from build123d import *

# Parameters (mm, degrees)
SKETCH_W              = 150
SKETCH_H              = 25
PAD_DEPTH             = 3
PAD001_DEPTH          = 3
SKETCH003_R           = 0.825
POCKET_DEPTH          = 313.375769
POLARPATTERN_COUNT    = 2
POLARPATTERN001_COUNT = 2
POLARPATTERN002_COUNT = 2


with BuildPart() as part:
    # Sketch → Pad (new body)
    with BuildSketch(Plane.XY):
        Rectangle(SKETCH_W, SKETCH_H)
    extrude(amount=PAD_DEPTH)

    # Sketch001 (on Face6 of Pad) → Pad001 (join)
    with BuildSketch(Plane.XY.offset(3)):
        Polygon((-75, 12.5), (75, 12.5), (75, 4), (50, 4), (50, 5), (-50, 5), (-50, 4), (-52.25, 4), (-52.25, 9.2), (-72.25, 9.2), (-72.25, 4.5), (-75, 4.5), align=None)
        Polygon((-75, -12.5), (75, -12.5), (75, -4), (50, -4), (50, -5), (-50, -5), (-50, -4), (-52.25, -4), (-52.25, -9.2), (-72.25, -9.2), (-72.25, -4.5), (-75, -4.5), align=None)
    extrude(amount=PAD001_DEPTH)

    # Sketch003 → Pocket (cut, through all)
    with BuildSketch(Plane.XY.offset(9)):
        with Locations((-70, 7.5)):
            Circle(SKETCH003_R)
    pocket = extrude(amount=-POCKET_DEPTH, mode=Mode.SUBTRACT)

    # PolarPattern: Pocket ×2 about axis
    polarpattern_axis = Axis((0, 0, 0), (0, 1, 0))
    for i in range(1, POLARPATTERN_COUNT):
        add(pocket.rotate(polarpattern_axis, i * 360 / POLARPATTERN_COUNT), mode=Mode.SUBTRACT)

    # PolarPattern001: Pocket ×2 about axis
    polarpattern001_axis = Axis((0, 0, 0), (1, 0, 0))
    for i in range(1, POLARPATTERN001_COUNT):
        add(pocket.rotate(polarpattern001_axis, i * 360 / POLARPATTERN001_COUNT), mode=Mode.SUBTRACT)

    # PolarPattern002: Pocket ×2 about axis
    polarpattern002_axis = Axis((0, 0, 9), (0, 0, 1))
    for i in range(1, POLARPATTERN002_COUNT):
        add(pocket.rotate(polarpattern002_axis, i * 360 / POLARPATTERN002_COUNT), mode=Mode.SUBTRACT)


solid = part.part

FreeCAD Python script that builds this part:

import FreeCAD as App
import Part
import Sketcher

V = App.Vector
Q = App.Units.Quantity


def add_polygon(sketch, points):
    """Adds a closed chain of lines whose ends are joined by coincident constraints."""
    first, n = sketch.GeometryCount, len(points)
    for a, b in zip(points, points[1:] + points[:1]):
        sketch.addGeometry(Part.LineSegment(App.Vector(*a, 0), App.Vector(*b, 0)), False)
    for i in range(n):
        sketch.addConstraint(Sketcher.Constraint("Coincident", first + i, 2, first + (i + 1) % n, 1))

doc = App.newDocument("Part")
params = doc.addObject("Spreadsheet::Sheet", "Params")
for row, (alias, value) in enumerate([
    ("sketch1_width", "150 mm"),
    ("sketch1_height", "25 mm"),
    ("pad1_length", "3 mm"),
    ("sketch2_width", "150 mm"),
    ("sketch2_width2", "20 mm"),
    ("sketch2_width3", "100 mm"),
    ("sketch2_height", "8 mm"),
    ("sketch2_height2", "1 mm"),
    ("pad2_length", "3 mm"),
    ("sketch3_diameter", "1.65 mm"),
], start=1):
    params.set(f"A{row}", alias)
    params.set(f"B{row}", "=" + value)
    params.setAlias(f"B{row}", alias)

body = doc.addObject("PartDesign::Body", "Body")

# Sketch on XY plane
sketch1 = doc.addObject("Sketcher::SketchObject", "Sketch")
body.addObject(sketch1)
sketch1.AttachmentSupport = (doc.XY_Plane, [""])
sketch1.MapMode = "FlatFace"
add_polygon(sketch1, [(-75, 12), (-75, -12), (75, -12), (75, 12)])  # lines 0-3
sketch1.addConstraint(Sketcher.Constraint("Vertical", 0))
sketch1.addConstraint(Sketcher.Constraint("Horizontal", 1))
sketch1.addConstraint(Sketcher.Constraint("Vertical", 2))
sketch1.addConstraint(Sketcher.Constraint("Horizontal", 3))
sketch1.addConstraint(Sketcher.Constraint("Symmetric", 0, 2, 2, 2, -1, 1))
sketch1.addConstraint(Sketcher.Constraint("DistanceX", 1, 1, 1, 2, Q("150 mm")))
sketch1.addConstraint(Sketcher.Constraint("DistanceY", 0, 2, 0, 1, Q("25 mm")))
sketch1.setExpression("Constraints[9]", "Params.sketch1_width")
sketch1.setExpression("Constraints[10]", "Params.sketch1_height")
pad1 = doc.addObject("PartDesign::Pad", "Pad")
body.addObject(pad1)
pad1.Profile = sketch1
pad1.setExpression("Length", "Params.pad1_length")

# Sketch on XY plane
sketch2 = doc.addObject("Sketcher::SketchObject", "Sketch001")
body.addObject(sketch2)
sketch2.AttachmentSupport = (doc.XY_Plane, [""])
sketch2.MapMode = "FlatFace"
sketch2.AttachmentOffset = App.Placement(V(0, 0, 3), App.Rotation())
add_polygon(sketch2, [(75, 12.5), (-75, 12.5), (-75, 4.5), (-72.2, 4.5), (-72.2, 9.2), (-52.2, 9.2), (-52.2, 4), (-50, 4), (-50, 5), (50, 5), (50, 4), (75, 4)])  # lines 0-11
add_polygon(sketch2, [(-75, -12.5), (75, -12.5), (75, -4), (50, -4), (50, -5), (-50, -5), (-50, -4), (-52.2, -4), (-52.2, -9.2), (-72.2, -9.2), (-72.2, -4.5), (-75, -4.5)])  # lines 12-23
sketch2.addConstraint(Sketcher.Constraint("Horizontal", 0))
sketch2.addConstraint(Sketcher.Constraint("Vertical", 1))
sketch2.addConstraint(Sketcher.Constraint("Horizontal", 2))
sketch2.addConstraint(Sketcher.Constraint("Vertical", 3))
sketch2.addConstraint(Sketcher.Constraint("Horizontal", 4))
sketch2.addConstraint(Sketcher.Constraint("Vertical", 5))
sketch2.addConstraint(Sketcher.Constraint("Horizontal", 6))
sketch2.addConstraint(Sketcher.Constraint("Vertical", 7))
sketch2.addConstraint(Sketcher.Constraint("Horizontal", 8))
sketch2.addConstraint(Sketcher.Constraint("Vertical", 9))
sketch2.addConstraint(Sketcher.Constraint("Horizontal", 10))
sketch2.addConstraint(Sketcher.Constraint("Vertical", 11))
sketch2.addConstraint(Sketcher.Constraint("Horizontal", 12))
sketch2.addConstraint(Sketcher.Constraint("Vertical", 13))
sketch2.addConstraint(Sketcher.Constraint("Horizontal", 14))
sketch2.addConstraint(Sketcher.Constraint("Vertical", 15))
sketch2.addConstraint(Sketcher.Constraint("Horizontal", 16))
sketch2.addConstraint(Sketcher.Constraint("Vertical", 17))
sketch2.addConstraint(Sketcher.Constraint("Horizontal", 18))
sketch2.addConstraint(Sketcher.Constraint("Vertical", 19))
sketch2.addConstraint(Sketcher.Constraint("Horizontal", 20))
sketch2.addConstraint(Sketcher.Constraint("Vertical", 21))
sketch2.addConstraint(Sketcher.Constraint("Horizontal", 22))
sketch2.addConstraint(Sketcher.Constraint("Vertical", 23))
sketch2.addConstraint(Sketcher.Constraint("Symmetric", 0, 2, 12, 2, -1, 1))
sketch2.addConstraint(Sketcher.Constraint("Symmetric", 6, 2, 14, 2, -1, 1))
sketch2.addConstraint(Sketcher.Constraint("Symmetric", 8, 2, 16, 2, -1, 1))
sketch2.addConstraint(Sketcher.Constraint("Symmetric", 6, 2, 9, 2, -2))
sketch2.addConstraint(Sketcher.Constraint("Symmetric", 5, 2, 18, 2, -1))
sketch2.addConstraint(Sketcher.Constraint("Symmetric", 3, 2, 20, 2, -1))
sketch2.addConstraint(Sketcher.Constraint("Symmetric", 1, 2, 22, 2, -1))
sketch2.addConstraint(Sketcher.Constraint("Vertical", 11, 2, 12, 2))
sketch2.addConstraint(Sketcher.Constraint("DistanceX", 0, 2, 0, 1, Q("150 mm")))
sketch2.addConstraint(Sketcher.Constraint("DistanceX", 4, 1, 4, 2, Q("20 mm")))
sketch2.addConstraint(Sketcher.Constraint("DistanceX", 8, 1, 8, 2, Q("100 mm")))
sketch2.addConstraint(Sketcher.Constraint("DistanceY", 1, 2, 1, 1, Q("8 mm")))
sketch2.addConstraint(Sketcher.Constraint("DistanceY", 7, 1, 7, 2, Q("1 mm")))
sketch2.addConstraint(Sketcher.Constraint("DistanceY", 3, 1, 3, 2, Q("4.7 mm")))
sketch2.addConstraint(Sketcher.Constraint("DistanceY", 5, 2, 5, 1, Q("5.2 mm")))
sketch2.addConstraint(Sketcher.Constraint("DistanceY", -1, 1, 5, 2, Q("4 mm")))
sketch2.addConstraint(Sketcher.Constraint("DistanceX", 2, 1, 2, 2, Q("2.75 mm")))
sketch2.setExpression("Constraints[56]", "Params.sketch2_width")
sketch2.setExpression("Constraints[57]", "Params.sketch2_width2")
sketch2.setExpression("Constraints[58]", "Params.sketch2_width3")
sketch2.setExpression("Constraints[59]", "Params.sketch2_height")
sketch2.setExpression("Constraints[60]", "Params.sketch2_height2")
pad2 = doc.addObject("PartDesign::Pad", "Pad001")
body.addObject(pad2)
pad2.Profile = sketch2
pad2.setExpression("Length", "Params.pad2_length")

# Sketch on XY plane
sketch3 = doc.addObject("Sketcher::SketchObject", "Sketch002")
body.addObject(sketch3)
sketch3.AttachmentSupport = (doc.XY_Plane, [""])
sketch3.MapMode = "FlatFace"
sketch3.AttachmentOffset = App.Placement(V(0, 0, 9), App.Rotation())
sketch3.addGeometry(Part.Circle(V(-70, 7.5, 0), V(0, 0, 1), 0.8), False)
sketch3.addConstraint(Sketcher.Constraint("Diameter", 0, Q("1.65 mm")))
sketch3.addConstraint(Sketcher.Constraint("DistanceX", 0, 3, -1, 1, Q("70 mm")))
sketch3.addConstraint(Sketcher.Constraint("DistanceY", -1, 1, 0, 3, Q("7.5 mm")))
sketch3.setExpression("Constraints[0]", "Params.sketch3_diameter")
pocket1 = doc.addObject("PartDesign::Pocket", "Pocket")
body.addObject(pocket1)
pocket1.Profile = sketch3
pocket1.Type = "ThroughAll"
doc.recompute()

polarpattern = doc.addObject("PartDesign::PolarPattern", "PolarPattern")
body.addObject(polarpattern)
polarpattern.Originals = [pocket1]
polarpattern.Axis = (doc.Y_Axis, [""])
polarpattern.Angle = 360
polarpattern.Occurrences = 2
body.Tip = polarpattern
doc.recompute()

polarpattern2 = doc.addObject("PartDesign::PolarPattern", "PolarPattern001")
body.addObject(polarpattern2)
polarpattern2.Originals = [pocket1]
polarpattern2.Axis = (doc.X_Axis, [""])
polarpattern2.Angle = 360
polarpattern2.Occurrences = 2
body.Tip = polarpattern2
doc.recompute()

polarpattern3 = doc.addObject("PartDesign::PolarPattern", "PolarPattern002")
body.addObject(polarpattern3)
polarpattern3.Originals = [pocket1]
polarpattern3.Axis = (doc.Z_Axis, [""])
polarpattern3.Angle = 360
polarpattern3.Occurrences = 2
body.Tip = polarpattern3

doc.recompute()
